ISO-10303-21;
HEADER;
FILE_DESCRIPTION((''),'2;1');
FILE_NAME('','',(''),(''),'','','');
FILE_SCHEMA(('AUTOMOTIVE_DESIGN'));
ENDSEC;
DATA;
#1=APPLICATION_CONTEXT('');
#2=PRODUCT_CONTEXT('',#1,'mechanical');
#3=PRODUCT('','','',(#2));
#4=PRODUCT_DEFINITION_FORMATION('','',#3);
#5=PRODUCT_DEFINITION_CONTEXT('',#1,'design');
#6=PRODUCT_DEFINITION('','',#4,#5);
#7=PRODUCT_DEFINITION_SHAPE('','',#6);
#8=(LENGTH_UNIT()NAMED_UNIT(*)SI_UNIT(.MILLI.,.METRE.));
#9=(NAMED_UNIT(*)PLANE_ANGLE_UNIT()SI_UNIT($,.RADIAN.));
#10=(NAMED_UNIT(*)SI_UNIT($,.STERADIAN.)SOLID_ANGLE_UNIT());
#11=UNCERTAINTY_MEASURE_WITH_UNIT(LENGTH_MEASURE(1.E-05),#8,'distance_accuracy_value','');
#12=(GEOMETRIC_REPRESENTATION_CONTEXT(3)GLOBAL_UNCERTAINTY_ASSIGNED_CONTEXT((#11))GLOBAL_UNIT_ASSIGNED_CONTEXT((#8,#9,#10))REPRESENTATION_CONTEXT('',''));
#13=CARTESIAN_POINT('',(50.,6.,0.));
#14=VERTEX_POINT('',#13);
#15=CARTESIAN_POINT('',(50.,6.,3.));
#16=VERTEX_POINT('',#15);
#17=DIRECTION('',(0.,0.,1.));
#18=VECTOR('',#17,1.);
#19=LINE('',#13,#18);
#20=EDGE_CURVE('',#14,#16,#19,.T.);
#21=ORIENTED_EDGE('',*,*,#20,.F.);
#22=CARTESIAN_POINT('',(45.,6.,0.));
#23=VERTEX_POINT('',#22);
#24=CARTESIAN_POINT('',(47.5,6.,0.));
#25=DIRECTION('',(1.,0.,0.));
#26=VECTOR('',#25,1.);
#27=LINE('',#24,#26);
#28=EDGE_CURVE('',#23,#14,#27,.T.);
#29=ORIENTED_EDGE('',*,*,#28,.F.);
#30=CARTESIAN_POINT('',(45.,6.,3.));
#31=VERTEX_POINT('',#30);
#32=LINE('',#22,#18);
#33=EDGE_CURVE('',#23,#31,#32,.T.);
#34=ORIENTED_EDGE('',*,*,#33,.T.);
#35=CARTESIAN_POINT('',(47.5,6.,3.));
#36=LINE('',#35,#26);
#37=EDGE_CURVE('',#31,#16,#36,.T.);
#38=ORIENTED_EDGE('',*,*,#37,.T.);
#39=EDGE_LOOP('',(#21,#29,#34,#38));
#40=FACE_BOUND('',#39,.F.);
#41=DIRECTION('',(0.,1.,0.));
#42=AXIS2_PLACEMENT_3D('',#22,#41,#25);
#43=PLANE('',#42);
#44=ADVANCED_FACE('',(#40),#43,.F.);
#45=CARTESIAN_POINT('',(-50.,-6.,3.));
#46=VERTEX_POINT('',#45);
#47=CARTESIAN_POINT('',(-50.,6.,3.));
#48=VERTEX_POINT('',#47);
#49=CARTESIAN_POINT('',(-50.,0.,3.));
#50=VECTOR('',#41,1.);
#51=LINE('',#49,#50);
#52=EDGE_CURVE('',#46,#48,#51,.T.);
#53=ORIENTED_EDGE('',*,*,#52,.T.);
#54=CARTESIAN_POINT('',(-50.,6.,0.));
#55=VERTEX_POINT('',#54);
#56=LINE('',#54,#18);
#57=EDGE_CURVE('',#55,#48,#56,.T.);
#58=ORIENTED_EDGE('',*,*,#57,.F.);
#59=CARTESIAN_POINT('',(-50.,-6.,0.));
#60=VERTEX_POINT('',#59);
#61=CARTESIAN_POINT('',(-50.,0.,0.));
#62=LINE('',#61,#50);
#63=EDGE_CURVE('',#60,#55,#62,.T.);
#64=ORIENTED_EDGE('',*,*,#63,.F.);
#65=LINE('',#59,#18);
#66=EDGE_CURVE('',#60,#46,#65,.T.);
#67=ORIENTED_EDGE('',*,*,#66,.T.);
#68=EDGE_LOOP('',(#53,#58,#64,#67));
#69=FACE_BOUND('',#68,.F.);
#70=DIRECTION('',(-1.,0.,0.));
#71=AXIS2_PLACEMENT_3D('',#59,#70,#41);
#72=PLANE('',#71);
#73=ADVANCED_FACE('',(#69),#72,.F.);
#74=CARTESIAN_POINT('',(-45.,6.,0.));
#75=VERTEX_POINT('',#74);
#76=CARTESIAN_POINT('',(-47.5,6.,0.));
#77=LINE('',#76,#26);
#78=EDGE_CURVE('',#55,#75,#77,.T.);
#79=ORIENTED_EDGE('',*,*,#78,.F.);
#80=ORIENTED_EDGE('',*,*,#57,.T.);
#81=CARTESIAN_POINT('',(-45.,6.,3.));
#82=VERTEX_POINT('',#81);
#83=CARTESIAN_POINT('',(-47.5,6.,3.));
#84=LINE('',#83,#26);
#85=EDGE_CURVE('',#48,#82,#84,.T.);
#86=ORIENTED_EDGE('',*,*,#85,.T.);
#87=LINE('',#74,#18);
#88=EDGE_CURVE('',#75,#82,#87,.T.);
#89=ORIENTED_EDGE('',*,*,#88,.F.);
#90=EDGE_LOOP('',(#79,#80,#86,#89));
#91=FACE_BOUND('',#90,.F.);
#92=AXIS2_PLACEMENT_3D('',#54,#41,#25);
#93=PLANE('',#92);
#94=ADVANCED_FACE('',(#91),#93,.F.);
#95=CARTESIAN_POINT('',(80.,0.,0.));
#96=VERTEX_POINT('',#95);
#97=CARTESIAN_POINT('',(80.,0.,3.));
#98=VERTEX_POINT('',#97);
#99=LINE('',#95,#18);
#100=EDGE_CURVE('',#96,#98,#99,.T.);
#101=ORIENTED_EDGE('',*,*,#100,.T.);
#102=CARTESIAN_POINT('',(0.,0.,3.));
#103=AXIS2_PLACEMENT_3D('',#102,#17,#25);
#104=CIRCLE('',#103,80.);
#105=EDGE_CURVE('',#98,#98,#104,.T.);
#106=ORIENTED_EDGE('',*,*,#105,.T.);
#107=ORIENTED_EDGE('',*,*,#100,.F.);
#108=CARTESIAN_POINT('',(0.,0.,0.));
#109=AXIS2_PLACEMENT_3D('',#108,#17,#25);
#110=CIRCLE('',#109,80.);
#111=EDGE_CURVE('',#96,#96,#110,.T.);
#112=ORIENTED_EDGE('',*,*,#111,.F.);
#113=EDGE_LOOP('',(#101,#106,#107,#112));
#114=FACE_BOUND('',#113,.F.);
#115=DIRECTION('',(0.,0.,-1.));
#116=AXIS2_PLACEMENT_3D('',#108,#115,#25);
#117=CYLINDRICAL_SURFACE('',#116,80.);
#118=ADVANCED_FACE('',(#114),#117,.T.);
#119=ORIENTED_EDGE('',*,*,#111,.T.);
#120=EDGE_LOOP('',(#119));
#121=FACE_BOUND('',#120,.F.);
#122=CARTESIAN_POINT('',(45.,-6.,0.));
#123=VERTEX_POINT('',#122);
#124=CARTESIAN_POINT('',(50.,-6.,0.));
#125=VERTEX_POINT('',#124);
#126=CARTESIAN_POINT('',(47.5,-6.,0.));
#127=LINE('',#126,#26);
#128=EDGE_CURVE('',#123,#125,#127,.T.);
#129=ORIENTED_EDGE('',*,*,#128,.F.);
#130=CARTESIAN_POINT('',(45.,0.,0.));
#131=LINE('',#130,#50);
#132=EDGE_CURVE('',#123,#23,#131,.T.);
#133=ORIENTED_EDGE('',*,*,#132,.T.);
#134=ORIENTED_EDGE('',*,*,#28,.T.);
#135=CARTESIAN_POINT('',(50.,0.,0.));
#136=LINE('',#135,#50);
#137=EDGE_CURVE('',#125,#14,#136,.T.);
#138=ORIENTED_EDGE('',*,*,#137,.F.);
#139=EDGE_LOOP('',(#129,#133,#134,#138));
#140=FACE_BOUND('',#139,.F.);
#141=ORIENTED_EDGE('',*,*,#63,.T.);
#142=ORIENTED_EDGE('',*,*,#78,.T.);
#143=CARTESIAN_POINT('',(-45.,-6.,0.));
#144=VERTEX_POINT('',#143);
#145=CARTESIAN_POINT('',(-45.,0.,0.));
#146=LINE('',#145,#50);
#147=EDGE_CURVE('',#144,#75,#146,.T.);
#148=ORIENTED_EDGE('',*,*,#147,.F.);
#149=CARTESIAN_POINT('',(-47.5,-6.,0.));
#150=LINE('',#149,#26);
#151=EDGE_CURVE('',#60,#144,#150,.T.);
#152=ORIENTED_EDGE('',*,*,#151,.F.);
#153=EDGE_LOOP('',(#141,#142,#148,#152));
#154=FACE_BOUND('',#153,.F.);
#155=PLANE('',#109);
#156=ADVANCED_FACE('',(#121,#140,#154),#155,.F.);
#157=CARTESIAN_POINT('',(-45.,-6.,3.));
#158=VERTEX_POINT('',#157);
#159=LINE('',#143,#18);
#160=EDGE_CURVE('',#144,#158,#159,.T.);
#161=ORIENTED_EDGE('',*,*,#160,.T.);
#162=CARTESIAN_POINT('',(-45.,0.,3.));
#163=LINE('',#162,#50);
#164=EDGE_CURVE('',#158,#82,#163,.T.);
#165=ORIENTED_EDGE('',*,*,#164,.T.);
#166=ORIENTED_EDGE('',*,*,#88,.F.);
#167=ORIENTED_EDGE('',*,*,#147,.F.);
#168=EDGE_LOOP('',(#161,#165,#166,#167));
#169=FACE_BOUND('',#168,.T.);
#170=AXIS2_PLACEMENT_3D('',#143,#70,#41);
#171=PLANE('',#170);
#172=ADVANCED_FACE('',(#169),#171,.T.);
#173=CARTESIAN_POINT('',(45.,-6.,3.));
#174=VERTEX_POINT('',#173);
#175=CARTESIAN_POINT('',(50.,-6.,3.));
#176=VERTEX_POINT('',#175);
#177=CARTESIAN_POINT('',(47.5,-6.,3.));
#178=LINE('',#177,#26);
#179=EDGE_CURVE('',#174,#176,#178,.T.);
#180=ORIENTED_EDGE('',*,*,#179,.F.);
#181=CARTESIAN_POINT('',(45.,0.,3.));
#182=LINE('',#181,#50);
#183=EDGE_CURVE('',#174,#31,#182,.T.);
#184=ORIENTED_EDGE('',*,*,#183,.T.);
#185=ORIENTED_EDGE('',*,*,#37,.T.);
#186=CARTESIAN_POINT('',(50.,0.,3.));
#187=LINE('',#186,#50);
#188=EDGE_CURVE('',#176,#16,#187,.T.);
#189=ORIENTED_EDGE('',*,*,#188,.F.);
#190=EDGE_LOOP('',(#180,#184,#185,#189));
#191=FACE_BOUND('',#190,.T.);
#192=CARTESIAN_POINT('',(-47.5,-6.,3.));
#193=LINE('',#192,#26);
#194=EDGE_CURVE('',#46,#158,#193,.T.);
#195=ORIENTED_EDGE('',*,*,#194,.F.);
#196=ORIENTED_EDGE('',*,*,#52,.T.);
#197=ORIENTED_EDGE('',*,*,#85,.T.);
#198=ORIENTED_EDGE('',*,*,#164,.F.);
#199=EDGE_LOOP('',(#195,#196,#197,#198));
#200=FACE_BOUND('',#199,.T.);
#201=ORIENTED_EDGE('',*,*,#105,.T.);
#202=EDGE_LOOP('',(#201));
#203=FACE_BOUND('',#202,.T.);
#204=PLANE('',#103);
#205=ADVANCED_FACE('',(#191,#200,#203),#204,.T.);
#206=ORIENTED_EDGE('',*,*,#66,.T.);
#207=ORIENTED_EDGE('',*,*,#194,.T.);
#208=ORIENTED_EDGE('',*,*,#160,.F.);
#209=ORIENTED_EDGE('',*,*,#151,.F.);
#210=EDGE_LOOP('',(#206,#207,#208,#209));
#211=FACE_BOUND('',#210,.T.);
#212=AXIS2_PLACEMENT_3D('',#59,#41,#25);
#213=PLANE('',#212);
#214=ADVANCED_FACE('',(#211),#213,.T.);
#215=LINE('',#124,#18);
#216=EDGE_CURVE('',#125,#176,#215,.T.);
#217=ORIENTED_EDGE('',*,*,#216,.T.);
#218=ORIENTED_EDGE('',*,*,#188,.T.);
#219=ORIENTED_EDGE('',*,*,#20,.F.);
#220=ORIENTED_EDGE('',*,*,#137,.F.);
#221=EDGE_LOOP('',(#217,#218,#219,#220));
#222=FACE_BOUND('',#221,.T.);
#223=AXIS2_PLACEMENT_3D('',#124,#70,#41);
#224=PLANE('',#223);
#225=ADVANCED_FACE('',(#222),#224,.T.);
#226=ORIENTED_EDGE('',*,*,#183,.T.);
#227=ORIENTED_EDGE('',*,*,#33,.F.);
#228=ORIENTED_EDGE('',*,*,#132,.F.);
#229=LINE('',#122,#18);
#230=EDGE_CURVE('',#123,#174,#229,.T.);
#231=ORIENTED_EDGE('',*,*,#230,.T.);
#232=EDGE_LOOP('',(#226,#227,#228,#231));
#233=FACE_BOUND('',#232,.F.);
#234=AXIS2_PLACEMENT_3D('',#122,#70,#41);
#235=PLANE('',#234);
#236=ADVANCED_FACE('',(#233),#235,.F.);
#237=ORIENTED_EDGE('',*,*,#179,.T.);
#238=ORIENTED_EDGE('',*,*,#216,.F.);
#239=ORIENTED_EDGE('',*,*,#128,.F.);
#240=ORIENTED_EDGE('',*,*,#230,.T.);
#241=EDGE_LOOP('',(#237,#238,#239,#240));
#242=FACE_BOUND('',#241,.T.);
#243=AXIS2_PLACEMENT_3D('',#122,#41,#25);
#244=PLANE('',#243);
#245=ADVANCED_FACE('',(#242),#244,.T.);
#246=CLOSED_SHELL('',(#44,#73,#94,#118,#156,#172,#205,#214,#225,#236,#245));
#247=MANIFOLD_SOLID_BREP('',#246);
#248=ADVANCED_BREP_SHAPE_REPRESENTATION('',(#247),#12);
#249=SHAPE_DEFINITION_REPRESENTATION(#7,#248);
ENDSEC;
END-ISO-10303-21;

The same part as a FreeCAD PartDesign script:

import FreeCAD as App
import Part
import Sketcher
from FreeCAD import Vector
Q = App.Units.Quantity

doc = App.newDocument("Part")
params = doc.addObject("Spreadsheet::Sheet", "Params")
for row, (alias, value) in enumerate([
    ("sketch1_diameter", "160 mm"),
    ("sketch1_width", "5 mm"),
    ("sketch1_height", "12 mm"),
    ("pad1_length", "3 mm"),
], start=1):
    params.set(f"A{row}", alias)
    params.set(f"B{row}", "=" + value)
    params.setAlias(f"B{row}", alias)

body = doc.addObject("PartDesign::Body", "Body")

# Sketch on XY plane
sketch1 = doc.addObject("Sketcher::SketchObject", "Sketch")
body.addObject(sketch1)
sketch1.AttachmentSupport = (doc.XY_Plane, [""])
sketch1.MapMode = "FlatFace"
sketch1.addGeometry([
    Part.Circle(Vector(0, 0, 0), Vector(0, 0, 1), 80),  # 0
    Part.LineSegment(Vector(-45, -6, 0), Vector(-50, -6, 0)),  # 1
    Part.LineSegment(Vector(-50, -6, 0), Vector(-50, 6, 0)),  # 2
    Part.LineSegment(Vector(-50, 6, 0), Vector(-45, 6, 0)),  # 3
    Part.LineSegment(Vector(-45, 6, 0), Vector(-45, -6, 0)),  # 4
    Part.LineSegment(Vector(50, -6, 0), Vector(45, -6, 0)),  # 5
    Part.LineSegment(Vector(45, -6, 0), Vector(45, 6, 0)),  # 6
    Part.LineSegment(Vector(45, 6, 0), Vector(50, 6, 0)),  # 7
    Part.LineSegment(Vector(50, 6, 0), Vector(50, -6, 0)),  # 8
], False)
sketch1.addConstraint([
    Sketcher.Constraint("Coincident", 1, 2, 2, 1),
    Sketcher.Constraint("Coincident", 2, 2, 3, 1),
    Sketcher.Constraint("Coincident", 3, 2, 4, 1),
    Sketcher.Constraint("Coincident", 4, 2, 1, 1),
    Sketcher.Constraint("Coincident", 5, 2, 6, 1),
    Sketcher.Constraint("Coincident", 6, 2, 7, 1),
    Sketcher.Constraint("Coincident", 7, 2, 8, 1),
    Sketcher.Constraint("Coincident", 8, 2, 5, 1),
    Sketcher.Constraint("Horizontal", 1),
    Sketcher.Constraint("Vertical", 2),
    Sketcher.Constraint("Horizontal", 3),
    Sketcher.Constraint("Vertical", 4),
    Sketcher.Constraint("Horizontal", 5),
    Sketcher.Constraint("Vertical", 6),
    Sketcher.Constraint("Horizontal", 7),
    Sketcher.Constraint("Vertical", 8),
    Sketcher.Constraint("Coincident", 0, 3, -1, 1),
    Sketcher.Constraint("Symmetric", 3, 2, 5, 2, -1, 1),
    Sketcher.Constraint("Symmetric", 1, 2, 7, 2, -1, 1),
    Sketcher.Constraint("Horizontal", 4, 2, 5, 2),
    Sketcher.Constraint("Diameter", 0, Q("160 mm")),
    Sketcher.Constraint("DistanceX", 1, 2, 1, 1, Q("5 mm")),
    Sketcher.Constraint("DistanceY", 2, 1, 2, 2, Q("12 mm")),
    Sketcher.Constraint("DistanceX", 1, 2, -1, 1, Q("50 mm")),
])
sketch1.setExpression("Constraints[20]", "Params.sketch1_diameter")
sketch1.setExpression("Constraints[21]", "Params.sketch1_width")
sketch1.setExpression("Constraints[22]", "Params.sketch1_height")
pad1 = doc.addObject("PartDesign::Pad", "Pad")
body.addObject(pad1)
pad1.Profile = sketch1
pad1.setExpression("Length", "Params.pad1_length")

doc.recompute()
